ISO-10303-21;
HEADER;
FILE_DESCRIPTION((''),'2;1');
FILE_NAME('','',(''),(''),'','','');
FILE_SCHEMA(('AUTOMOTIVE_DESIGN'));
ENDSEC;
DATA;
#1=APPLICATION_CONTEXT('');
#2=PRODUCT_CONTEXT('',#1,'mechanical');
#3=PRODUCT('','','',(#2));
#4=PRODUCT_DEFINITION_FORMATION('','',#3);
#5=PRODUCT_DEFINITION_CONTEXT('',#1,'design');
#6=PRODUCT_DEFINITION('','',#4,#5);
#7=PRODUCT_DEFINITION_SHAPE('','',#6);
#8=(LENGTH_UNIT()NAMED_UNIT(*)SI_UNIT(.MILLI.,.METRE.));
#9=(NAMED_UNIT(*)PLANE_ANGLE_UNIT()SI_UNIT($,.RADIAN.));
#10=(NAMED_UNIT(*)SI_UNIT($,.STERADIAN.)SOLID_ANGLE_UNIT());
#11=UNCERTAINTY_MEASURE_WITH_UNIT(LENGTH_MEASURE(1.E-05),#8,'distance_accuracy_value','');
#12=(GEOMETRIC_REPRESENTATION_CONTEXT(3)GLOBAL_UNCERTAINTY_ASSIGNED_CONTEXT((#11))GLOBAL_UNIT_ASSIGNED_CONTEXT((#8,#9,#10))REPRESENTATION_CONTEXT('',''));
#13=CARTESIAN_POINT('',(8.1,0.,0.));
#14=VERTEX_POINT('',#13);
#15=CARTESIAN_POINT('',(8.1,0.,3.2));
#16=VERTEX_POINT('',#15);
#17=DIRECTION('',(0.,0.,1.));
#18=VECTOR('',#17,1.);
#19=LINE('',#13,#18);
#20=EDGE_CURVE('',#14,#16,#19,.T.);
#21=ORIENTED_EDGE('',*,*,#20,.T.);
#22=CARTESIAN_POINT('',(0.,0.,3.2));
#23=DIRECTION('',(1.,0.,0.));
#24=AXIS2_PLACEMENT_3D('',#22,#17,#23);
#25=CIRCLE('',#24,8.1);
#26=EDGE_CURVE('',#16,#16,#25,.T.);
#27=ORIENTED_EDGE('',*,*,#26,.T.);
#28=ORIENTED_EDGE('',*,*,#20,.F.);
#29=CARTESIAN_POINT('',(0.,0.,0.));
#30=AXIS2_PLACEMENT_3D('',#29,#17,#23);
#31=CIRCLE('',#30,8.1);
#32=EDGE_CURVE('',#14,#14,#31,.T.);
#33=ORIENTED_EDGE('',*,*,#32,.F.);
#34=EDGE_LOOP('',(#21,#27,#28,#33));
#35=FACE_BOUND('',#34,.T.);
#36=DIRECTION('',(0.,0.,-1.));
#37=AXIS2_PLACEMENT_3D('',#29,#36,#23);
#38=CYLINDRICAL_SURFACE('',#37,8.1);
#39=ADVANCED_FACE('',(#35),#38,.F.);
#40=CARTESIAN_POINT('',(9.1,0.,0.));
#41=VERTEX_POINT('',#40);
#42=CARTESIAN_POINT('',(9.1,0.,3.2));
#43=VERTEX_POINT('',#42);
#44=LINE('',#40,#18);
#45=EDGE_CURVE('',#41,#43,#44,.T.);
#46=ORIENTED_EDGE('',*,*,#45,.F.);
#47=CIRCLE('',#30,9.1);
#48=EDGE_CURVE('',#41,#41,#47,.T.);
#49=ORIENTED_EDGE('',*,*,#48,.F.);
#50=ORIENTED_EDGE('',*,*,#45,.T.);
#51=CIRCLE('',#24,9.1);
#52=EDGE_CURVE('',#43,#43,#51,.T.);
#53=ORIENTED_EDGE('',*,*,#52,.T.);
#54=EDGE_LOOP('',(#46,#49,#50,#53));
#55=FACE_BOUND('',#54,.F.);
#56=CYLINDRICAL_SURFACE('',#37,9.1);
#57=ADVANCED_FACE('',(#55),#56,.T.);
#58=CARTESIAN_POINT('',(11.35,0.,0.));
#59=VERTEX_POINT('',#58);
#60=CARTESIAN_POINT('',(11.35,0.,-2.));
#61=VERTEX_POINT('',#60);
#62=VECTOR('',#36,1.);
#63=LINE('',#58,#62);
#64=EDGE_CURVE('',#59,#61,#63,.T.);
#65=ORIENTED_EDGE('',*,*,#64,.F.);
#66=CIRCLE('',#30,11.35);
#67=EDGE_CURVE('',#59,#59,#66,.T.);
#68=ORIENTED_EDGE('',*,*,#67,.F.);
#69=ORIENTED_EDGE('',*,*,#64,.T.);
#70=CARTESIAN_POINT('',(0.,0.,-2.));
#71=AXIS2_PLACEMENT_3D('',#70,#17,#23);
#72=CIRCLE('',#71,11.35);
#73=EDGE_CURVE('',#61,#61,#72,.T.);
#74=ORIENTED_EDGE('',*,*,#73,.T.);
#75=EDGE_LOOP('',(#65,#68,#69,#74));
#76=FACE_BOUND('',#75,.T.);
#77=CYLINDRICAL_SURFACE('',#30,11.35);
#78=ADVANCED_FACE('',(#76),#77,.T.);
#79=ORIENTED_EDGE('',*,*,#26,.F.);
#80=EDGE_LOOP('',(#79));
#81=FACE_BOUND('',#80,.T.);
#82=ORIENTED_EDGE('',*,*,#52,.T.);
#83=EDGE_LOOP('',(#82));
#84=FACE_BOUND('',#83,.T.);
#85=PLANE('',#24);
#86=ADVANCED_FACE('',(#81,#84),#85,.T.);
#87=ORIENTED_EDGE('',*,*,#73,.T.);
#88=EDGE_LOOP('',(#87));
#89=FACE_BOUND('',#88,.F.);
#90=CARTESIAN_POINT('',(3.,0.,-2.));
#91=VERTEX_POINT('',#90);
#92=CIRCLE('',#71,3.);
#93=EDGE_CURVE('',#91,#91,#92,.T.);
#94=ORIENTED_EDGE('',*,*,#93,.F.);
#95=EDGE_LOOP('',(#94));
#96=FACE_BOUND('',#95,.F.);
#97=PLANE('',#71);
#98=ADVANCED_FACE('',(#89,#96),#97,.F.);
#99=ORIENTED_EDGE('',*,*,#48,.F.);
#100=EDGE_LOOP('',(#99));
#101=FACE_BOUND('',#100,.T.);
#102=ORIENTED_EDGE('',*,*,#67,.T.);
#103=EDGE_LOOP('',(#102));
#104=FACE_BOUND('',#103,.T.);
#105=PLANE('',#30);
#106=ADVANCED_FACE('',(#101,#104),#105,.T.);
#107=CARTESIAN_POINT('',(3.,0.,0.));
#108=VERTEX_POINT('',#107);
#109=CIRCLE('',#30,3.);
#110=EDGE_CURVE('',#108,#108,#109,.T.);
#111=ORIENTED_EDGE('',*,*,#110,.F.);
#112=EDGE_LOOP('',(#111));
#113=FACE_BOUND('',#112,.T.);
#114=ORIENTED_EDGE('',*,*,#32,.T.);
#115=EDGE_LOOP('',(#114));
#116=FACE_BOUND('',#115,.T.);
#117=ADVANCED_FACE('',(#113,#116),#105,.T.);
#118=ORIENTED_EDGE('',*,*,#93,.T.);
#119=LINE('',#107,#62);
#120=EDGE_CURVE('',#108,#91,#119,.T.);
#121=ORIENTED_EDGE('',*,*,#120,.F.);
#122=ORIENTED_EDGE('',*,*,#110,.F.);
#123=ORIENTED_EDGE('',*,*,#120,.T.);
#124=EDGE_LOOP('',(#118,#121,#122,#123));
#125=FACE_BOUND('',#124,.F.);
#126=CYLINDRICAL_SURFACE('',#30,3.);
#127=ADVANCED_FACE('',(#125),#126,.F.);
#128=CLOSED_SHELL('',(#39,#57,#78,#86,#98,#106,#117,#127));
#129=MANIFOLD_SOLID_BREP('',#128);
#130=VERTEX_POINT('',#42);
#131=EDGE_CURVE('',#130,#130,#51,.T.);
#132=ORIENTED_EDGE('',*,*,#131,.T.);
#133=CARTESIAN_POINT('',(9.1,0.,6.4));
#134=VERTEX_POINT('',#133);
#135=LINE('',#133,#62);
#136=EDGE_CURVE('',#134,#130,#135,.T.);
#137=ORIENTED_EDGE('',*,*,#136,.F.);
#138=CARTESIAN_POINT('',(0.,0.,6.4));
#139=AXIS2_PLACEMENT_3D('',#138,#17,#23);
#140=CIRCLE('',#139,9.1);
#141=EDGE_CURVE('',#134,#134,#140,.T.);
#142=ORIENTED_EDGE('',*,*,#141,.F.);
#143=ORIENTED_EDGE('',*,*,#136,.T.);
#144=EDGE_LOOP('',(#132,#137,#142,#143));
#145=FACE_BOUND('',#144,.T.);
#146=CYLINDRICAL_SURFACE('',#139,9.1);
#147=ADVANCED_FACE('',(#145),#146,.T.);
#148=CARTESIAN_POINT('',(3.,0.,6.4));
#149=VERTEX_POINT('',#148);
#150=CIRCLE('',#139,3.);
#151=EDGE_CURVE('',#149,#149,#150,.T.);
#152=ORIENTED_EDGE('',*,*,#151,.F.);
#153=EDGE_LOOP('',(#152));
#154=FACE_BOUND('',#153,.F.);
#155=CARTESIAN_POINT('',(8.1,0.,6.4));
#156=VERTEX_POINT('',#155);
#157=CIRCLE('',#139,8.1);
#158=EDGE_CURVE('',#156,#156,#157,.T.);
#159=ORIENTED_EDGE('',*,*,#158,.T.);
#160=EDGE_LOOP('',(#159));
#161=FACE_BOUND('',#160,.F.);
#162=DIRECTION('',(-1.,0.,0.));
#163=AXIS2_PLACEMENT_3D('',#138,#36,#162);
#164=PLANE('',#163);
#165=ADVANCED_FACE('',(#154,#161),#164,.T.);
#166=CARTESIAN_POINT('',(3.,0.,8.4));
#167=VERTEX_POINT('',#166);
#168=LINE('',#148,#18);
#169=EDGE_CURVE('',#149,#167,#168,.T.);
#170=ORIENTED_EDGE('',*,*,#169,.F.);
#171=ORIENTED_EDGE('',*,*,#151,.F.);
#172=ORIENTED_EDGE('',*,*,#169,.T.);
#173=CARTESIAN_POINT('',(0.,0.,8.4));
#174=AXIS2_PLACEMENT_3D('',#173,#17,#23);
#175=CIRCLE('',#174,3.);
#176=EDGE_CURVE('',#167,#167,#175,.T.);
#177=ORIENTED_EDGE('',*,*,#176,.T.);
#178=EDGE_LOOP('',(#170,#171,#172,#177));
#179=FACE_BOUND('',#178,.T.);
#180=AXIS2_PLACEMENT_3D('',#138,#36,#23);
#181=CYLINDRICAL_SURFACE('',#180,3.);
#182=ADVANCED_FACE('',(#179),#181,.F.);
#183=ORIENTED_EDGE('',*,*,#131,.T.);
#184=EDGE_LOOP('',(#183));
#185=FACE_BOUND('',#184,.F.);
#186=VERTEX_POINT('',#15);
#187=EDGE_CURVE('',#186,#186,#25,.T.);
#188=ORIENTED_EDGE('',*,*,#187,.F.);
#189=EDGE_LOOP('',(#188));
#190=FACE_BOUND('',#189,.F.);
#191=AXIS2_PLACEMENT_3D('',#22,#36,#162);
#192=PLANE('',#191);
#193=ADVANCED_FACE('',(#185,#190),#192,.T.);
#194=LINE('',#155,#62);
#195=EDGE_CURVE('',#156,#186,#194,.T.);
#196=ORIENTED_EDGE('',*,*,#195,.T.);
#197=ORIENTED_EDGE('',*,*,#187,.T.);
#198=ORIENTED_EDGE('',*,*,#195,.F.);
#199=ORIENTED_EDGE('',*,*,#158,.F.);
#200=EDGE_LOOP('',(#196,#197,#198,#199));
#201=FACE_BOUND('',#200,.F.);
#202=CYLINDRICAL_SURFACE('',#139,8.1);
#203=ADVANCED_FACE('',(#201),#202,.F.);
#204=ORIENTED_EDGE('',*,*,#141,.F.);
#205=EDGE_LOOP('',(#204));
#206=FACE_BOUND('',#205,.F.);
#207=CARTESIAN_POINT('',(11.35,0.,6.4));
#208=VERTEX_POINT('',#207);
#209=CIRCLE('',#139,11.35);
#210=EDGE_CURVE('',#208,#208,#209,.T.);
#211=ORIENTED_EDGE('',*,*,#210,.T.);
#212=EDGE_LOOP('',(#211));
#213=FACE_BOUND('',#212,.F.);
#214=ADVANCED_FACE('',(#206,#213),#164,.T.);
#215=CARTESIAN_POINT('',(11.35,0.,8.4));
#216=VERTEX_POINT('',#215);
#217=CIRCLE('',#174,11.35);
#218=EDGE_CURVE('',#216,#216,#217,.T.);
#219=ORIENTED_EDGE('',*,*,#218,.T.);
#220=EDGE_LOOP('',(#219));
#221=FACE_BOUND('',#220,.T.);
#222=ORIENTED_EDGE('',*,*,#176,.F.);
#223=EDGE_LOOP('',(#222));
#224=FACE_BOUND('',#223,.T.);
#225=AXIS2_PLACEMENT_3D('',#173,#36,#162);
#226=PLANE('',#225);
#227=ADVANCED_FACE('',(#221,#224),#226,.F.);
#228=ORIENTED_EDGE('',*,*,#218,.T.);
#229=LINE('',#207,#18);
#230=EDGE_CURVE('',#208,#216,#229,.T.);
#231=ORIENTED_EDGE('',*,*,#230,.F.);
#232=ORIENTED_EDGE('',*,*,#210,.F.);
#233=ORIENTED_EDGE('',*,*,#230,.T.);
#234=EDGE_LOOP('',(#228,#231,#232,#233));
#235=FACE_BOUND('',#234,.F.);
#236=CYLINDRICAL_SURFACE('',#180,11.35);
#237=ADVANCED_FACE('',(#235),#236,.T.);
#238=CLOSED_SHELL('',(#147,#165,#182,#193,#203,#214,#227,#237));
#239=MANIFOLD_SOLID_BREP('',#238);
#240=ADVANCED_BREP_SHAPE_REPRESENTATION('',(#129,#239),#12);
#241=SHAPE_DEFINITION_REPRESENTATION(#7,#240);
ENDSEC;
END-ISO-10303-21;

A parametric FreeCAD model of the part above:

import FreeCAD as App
import Part
import Sketcher

V = App.Vector
Q = App.Units.Quantity

doc = App.newDocument("Part")
body = doc.addObject("PartDesign::Body", "Body")

# Sketch on XY plane
sketch1 = doc.addObject("Sketcher::SketchObject", "Sketch")
body.addObject(sketch1)
sketch1.AttachmentSupport = (doc.XY_Plane, [""])
sketch1.MapMode = "FlatFace"
sketch1.addGeometry([
    Part.Circle(V(0, 0, 0), V(0, 0, 1), 11.35),
    Part.Circle(V(0, 0, 0), V(0, 0, 1), 3),
], False)
sketch1.addConstraint([
    Sketcher.Constraint("Coincident", 0, 3, -1, 1),
    Sketcher.Constraint("Coincident", 1, 3, -1, 1),
    Sketcher.Constraint("Diameter", 1, Q("6 mm")),
    Sketcher.Constraint("Diameter", 0, Q("22.7 mm")),
])
pad1 = doc.addObject("PartDesign::Pad", "Pad")
body.addObject(pad1)
pad1.Profile = sketch1
pad1.Length = 2
pad1.Reversed = True

# Sketch on XY plane
sketch2 = doc.addObject("Sketcher::SketchObject", "Sketch001")
body.addObject(sketch2)
sketch2.AttachmentSupport = (doc.XY_Plane, [""])
sketch2.MapMode = "FlatFace"
sketch2.addGeometry([
    Part.Circle(V(0, 0, 0), V(0, 0, 1), 9.1),
    Part.Circle(V(0, 0, 0), V(0, 0, 1), 8.1),
], False)
sketch2.addConstraint([
    Sketcher.Constraint("Coincident", 0, 3, -1, 1),
    Sketcher.Constraint("Coincident", 1, 3, -1, 1),
    Sketcher.Constraint("Diameter", 0, Q("18.2 mm")),
    Sketcher.Constraint("Diameter", 1, Q("16.2 mm")),
])
pad2 = doc.addObject("PartDesign::Pad", "Pad001")
body.addObject(pad2)
pad2.Profile = sketch2
pad2.Length = 3.2
body2 = doc.addObject("PartDesign::Body", "Body001")
doc.recompute()

mirroring = doc.addObject("Part::Mirroring", "Mirroring")
mirroring.Source = body
mirroring.Base = V(0, 0, 3.2)
mirroring.Normal = V(0, 0, 1)
body2.BaseFeature = mirroring
doc.recompute()
mirroring.Visibility = False

doc.recompute()
